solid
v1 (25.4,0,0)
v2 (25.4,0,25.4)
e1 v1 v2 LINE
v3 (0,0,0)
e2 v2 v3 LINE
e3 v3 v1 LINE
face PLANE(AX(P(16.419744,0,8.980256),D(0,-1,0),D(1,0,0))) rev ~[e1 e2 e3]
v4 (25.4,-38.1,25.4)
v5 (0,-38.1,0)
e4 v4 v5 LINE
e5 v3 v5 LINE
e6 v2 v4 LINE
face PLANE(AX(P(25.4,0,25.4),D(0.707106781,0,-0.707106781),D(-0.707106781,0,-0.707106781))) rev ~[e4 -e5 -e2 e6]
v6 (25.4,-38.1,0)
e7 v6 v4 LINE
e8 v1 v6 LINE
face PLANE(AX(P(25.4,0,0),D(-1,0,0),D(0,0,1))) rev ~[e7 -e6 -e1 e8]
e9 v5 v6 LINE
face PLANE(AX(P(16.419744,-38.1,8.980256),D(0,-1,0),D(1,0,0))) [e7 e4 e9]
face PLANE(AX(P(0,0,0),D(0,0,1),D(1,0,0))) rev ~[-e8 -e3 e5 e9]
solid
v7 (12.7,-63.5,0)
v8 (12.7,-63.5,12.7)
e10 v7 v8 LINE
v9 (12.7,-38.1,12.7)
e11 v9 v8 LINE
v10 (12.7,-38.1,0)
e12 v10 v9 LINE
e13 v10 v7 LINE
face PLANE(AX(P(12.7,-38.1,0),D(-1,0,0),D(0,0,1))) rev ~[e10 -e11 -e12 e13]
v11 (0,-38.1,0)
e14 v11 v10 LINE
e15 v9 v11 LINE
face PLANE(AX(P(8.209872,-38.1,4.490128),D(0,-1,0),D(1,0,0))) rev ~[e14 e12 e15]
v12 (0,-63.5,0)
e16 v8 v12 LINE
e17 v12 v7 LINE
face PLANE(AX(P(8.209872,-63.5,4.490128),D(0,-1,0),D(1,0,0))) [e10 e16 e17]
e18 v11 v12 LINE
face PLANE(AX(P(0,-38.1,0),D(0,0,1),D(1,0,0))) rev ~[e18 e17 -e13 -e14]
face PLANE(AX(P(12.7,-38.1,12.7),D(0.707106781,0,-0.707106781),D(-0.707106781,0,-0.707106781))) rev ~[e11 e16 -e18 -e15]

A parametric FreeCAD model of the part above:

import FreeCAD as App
import Part
import Sketcher
Q = App.Units.Quantity

doc = App.newDocument("Part")
params = doc.addObject("Spreadsheet::Sheet", "Params")
for row, (alias, value) in enumerate([
    ("sketch1_width", "1 in"),
    ("pad1_length", "1.5 in"),
    ("sketch2_width", "0.5 in"),
    ("pad2_length", "1 in"),
], start=1):
    params.set(f"A{row}", alias)
    params.set(f"B{row}", "=" + value)
    params.setAlias(f"B{row}", alias)

body = doc.addObject("PartDesign::Body", "Body")

# Sketch on XZ plane
sketch1 = body.newObject("Sketcher::SketchObject", "Sketch")
sketch1.AttachmentSupport = (doc.getObject("XZ_Plane"), [""])
sketch1.MapMode = "FlatFace"
sketch1.addGeometry([
    Part.LineSegment(App.Vector(25.4, 25.4, 0), App.Vector(0, 0, 0)),
    Part.LineSegment(App.Vector(0, 0, 0), App.Vector(25.4, 0, 0)),
    Part.LineSegment(App.Vector(25.4, 0, 0), App.Vector(25.4, 25.4, 0)),
], False)
sketch1.addConstraint([
    Sketcher.Constraint("Coincident", 0, 2, 1, 1),
    Sketcher.Constraint("Coincident", 1, 2, 2, 1),
    Sketcher.Constraint("Coincident", 2, 2, 0, 1),
    Sketcher.Constraint("Horizontal", 1),
    Sketcher.Constraint("Vertical", 2),
    Sketcher.Constraint("Coincident", 0, 2, -1, 1),
    Sketcher.Constraint("Equal", 1, 2),
    Sketcher.Constraint("DistanceX", 1, 1, 1, 2, Q("1 in")),
])
sketch1.setExpression("Constraints[7]", "Params.sketch1_width")
pad1 = body.newObject("PartDesign::Pad", "Pad")
pad1.Profile = sketch1
pad1.setExpression("Length", "Params.pad1_length")
body2 = doc.addObject("PartDesign::Body", "Body001")

# Sketch on XZ plane
sketch2 = body2.newObject("Sketcher::SketchObject", "Sketch001")
sketch2.AttachmentSupport = (doc.getObject("XZ_Plane001"), [""])
sketch2.MapMode = "FlatFace"
sketch2.AttachmentOffset = App.Placement(App.Vector(0, 0, 1.5 * 25.4), App.Rotation())
sketch2.addGeometry([
    Part.LineSegment(App.Vector(12.7, 12.7, 0), App.Vector(0, 0, 0)),
    Part.LineSegment(App.Vector(0, 0, 0), App.Vector(12.7, 0, 0)),
    Part.LineSegment(App.Vector(12.7, 0, 0), App.Vector(12.7, 12.7, 0)),
], False)
sketch2.addConstraint([
    Sketcher.Constraint("Coincident", 0, 2, 1, 1),
    Sketcher.Constraint("Coincident", 1, 2, 2, 1),
    Sketcher.Constraint("Coincident", 2, 2, 0, 1),
    Sketcher.Constraint("Horizontal", 1),
    Sketcher.Constraint("Vertical", 2),
    Sketcher.Constraint("Coincident", 0, 2, -1, 1),
    Sketcher.Constraint("Equal", 1, 2),
    Sketcher.Constraint("DistanceX", 1, 1, 1, 2, Q("0.5 in")),
])
sketch2.setExpression("Constraints[7]", "Params.sketch2_width")
pad2 = body2.newObject("PartDesign::Pad", "Pad001")
pad2.Profile = sketch2
pad2.setExpression("Length", "Params.pad2_length")

doc.recompute()
